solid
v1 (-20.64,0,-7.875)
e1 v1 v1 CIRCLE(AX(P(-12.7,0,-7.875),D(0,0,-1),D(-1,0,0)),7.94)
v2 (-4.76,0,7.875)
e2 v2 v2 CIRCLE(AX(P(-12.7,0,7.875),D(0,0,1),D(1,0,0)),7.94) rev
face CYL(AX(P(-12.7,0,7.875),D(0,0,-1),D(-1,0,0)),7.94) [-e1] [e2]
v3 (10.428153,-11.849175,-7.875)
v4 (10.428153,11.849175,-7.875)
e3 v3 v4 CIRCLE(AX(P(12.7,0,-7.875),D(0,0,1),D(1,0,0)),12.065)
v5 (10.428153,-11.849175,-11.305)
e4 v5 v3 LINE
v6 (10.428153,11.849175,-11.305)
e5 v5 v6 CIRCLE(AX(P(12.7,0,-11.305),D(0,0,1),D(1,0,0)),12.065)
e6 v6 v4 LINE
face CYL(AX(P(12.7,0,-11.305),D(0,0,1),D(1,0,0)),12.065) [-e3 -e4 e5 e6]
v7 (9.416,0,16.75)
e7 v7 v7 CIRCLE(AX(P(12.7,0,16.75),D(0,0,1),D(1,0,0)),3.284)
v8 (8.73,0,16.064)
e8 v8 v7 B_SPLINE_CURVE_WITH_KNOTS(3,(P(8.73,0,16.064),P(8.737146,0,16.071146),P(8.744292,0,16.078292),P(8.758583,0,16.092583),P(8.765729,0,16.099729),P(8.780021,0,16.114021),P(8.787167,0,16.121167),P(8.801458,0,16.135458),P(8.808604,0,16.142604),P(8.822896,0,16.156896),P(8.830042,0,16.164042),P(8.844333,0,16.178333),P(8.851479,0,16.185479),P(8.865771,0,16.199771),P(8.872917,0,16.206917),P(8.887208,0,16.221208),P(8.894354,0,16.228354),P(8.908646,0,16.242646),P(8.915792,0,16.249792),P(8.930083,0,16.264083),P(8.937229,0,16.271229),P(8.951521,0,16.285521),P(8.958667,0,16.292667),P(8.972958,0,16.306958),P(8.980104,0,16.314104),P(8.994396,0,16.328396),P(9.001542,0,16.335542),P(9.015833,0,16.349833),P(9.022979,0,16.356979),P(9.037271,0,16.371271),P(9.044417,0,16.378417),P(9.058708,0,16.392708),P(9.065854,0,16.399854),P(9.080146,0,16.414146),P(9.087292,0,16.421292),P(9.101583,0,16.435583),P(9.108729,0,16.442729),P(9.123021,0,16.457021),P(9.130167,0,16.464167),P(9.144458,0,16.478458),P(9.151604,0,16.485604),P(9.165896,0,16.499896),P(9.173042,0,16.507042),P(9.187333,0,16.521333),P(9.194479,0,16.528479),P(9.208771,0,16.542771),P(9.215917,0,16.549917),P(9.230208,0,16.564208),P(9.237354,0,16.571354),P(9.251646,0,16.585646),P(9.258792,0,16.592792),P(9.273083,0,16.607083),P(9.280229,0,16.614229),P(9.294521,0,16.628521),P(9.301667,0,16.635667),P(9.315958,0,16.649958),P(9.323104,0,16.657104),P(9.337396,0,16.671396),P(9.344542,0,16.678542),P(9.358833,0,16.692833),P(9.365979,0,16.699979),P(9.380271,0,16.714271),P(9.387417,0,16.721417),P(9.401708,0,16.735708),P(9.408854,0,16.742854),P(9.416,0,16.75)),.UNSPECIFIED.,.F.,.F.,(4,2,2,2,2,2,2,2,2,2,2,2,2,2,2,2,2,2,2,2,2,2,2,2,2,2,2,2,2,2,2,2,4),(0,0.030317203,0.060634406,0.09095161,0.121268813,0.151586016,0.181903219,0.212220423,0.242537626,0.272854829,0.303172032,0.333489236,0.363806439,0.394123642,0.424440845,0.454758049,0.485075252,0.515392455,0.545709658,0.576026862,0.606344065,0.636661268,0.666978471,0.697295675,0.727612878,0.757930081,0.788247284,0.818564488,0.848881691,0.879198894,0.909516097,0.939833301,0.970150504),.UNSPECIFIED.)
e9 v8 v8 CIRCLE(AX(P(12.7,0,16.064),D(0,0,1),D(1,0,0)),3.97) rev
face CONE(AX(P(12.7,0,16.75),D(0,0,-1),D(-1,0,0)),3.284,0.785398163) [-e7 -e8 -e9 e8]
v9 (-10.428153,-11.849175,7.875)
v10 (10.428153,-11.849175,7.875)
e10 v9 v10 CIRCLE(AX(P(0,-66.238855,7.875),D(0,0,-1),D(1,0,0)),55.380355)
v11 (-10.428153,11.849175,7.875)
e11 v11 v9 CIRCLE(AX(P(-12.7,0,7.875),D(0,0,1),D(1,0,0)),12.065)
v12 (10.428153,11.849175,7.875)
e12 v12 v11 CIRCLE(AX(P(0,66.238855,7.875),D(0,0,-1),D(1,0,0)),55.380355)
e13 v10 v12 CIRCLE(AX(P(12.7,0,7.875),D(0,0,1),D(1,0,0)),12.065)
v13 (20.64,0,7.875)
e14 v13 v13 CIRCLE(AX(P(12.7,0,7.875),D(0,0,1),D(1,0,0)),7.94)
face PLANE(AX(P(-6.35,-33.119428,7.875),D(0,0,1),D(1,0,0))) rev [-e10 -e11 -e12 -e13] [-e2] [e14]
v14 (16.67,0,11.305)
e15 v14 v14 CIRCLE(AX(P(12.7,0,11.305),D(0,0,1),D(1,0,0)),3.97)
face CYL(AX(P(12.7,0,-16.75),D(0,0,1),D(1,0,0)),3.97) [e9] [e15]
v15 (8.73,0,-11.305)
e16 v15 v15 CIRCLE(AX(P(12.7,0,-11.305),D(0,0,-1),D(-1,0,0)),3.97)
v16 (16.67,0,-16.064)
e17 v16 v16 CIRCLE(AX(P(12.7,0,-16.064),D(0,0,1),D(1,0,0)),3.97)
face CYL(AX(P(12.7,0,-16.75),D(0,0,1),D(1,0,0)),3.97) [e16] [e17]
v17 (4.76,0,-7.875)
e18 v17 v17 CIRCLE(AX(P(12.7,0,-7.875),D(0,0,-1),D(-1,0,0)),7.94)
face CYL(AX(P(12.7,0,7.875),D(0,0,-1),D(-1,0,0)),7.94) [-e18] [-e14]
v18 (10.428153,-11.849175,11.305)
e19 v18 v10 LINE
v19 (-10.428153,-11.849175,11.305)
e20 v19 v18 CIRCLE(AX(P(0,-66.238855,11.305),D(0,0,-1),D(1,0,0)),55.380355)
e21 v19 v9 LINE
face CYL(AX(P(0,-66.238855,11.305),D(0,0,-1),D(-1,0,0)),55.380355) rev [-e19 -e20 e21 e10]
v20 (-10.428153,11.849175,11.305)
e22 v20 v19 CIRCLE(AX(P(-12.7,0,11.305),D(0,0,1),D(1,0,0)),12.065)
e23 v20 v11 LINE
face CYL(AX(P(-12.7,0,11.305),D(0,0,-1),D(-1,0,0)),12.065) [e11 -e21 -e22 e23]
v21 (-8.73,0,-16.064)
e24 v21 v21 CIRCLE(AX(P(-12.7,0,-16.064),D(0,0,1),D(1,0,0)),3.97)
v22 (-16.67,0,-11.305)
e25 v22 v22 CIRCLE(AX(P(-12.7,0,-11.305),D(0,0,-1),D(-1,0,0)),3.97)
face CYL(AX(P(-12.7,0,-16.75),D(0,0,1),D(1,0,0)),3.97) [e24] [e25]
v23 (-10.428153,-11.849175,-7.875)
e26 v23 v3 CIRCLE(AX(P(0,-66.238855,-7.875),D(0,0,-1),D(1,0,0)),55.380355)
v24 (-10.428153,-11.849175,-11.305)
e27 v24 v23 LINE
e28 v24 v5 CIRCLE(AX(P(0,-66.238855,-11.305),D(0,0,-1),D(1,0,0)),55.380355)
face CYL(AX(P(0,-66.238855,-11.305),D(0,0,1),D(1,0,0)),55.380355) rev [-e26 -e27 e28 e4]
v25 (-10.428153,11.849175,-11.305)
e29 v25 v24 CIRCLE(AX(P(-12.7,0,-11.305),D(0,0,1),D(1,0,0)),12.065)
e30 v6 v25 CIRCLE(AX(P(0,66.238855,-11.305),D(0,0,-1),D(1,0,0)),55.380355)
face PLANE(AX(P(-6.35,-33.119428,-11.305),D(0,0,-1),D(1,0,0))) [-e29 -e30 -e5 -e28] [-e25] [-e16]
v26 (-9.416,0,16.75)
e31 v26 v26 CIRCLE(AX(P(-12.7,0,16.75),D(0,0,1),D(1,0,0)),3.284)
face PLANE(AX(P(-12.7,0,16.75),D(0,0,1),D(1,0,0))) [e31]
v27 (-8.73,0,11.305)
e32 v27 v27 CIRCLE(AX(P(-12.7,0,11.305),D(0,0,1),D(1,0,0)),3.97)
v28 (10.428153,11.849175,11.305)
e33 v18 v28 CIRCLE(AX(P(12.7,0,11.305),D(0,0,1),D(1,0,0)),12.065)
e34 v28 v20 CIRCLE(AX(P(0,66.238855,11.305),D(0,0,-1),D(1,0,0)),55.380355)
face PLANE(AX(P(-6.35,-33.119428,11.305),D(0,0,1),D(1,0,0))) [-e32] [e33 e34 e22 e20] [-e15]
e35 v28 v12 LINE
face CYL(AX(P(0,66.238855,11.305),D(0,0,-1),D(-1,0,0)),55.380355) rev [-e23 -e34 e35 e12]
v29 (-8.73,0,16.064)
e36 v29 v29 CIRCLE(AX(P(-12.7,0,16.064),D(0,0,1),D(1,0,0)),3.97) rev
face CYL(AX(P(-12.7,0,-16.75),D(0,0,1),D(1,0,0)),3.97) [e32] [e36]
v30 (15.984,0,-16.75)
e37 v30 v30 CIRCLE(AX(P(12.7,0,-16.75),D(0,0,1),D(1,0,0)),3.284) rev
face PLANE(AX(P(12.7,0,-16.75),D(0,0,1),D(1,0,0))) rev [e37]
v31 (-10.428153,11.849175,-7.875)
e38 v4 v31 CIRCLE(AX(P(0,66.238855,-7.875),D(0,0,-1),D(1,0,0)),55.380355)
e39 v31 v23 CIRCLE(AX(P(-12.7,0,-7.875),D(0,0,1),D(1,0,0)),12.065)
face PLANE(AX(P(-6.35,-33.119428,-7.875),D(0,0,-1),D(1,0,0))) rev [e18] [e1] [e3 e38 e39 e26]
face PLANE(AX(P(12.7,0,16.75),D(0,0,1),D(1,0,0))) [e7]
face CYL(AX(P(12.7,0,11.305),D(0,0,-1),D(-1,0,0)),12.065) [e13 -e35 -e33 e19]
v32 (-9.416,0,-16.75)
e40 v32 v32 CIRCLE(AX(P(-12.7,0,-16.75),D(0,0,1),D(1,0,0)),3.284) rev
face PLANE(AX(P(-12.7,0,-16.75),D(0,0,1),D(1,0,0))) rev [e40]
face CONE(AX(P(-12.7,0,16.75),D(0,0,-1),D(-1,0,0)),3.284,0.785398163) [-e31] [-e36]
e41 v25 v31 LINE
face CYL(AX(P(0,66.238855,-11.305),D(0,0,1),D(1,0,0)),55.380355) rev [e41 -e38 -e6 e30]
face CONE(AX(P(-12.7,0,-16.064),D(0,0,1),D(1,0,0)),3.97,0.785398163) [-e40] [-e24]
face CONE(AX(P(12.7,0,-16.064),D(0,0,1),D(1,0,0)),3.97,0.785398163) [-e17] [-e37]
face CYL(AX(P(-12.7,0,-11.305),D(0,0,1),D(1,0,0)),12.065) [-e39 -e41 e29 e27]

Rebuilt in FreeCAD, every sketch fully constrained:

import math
import FreeCAD as App
import Part
import Sketcher

V = App.Vector
Q = App.Units.Quantity


def edges_at(feature, points):
    """Names of the edges that pass closest to the given points."""
    edges = feature.Shape.Edges
    near = lambda p: min(range(len(edges)), key=lambda i: edges[i].distToShape(Part.Vertex(*p))[0])
    return sorted({f"Edge{near(p) + 1}" for p in points})

doc = App.newDocument("Part")
body = doc.addObject("PartDesign::Body", "Body")

# Sketch on XY plane
sketch1 = doc.addObject("Sketcher::SketchObject", "Sketch")
body.addObject(sketch1)
sketch1.AttachmentSupport = (doc.XY_Plane, [""])
sketch1.MapMode = "FlatFace"
sketch1.addGeometry(Part.Circle(V(13, 0, 0), V(0, 0, 1), 8), False)
sketch1.addConstraint([
    Sketcher.Constraint("PointOnObject", 0, 3, -1),
    Sketcher.Constraint("DistanceX", -1, 1, 0, 3, Q("0.5 in")),
    Sketcher.Constraint("Diameter", 0, Q("15.88 mm")),
])
pad1 = doc.addObject("PartDesign::Pad", "Pad")
body.addObject(pad1)
pad1.Profile = sketch1
pad1.Length = 15.75
pad1.Midplane = True
body2 = doc.addObject("PartDesign::Body", "Body001")

# Sketch on XY plane
sketch2 = doc.addObject("Sketcher::SketchObject", "Sketch001")
body2.addObject(sketch2)
sketch2.AttachmentSupport = (doc.getObject("XY_Plane001"), [""])
sketch2.MapMode = "FlatFace"
sketch2.addGeometry(Part.Circle(V(-13, 0, 0), V(0, 0, 1), 8), False)
sketch2.addConstraint([
    Sketcher.Constraint("PointOnObject", 0, 3, -1),
    Sketcher.Constraint("DistanceX", 0, 3, -1, 1, Q("0.5 in")),
    Sketcher.Constraint("Diameter", 0, Q("15.88 mm")),
])
pad2 = doc.addObject("PartDesign::Pad", "Pad001")
body2.addObject(pad2)
pad2.Profile = sketch2
pad2.Length = 15.75
pad2.Midplane = True
body.AllowCompound = True
doc.recompute()

boolean = doc.addObject("PartDesign::Boolean", "Boolean")
body.addObject(boolean)
boolean.Type = "Fuse"
boolean.addObjects([body2])

# Sketch on XY plane
sketch3 = doc.addObject("Sketcher::SketchObject", "Sketch002")
body.addObject(sketch3)
sketch3.AttachmentSupport = (doc.XY_Plane, [""])
sketch3.MapMode = "FlatFace"
sketch3.AttachmentOffset = App.Placement(V(0, 0, 7.875), App.Rotation())
sketch3.addGeometry([
    Part.ArcOfCircle(Part.Circle(V(-13, 0, 0), V(0, 0, 1), 12), math.radians(79), math.radians(281)),
    Part.ArcOfCircle(Part.Circle(V(0, -66, 0), V(0, 0, 1), 55), math.radians(79), math.radians(101)),
    Part.ArcOfCircle(Part.Circle(V(13, 0, 0), V(0, 0, 1), 12), math.radians(-101), math.radians(101)),
    Part.ArcOfCircle(Part.Circle(V(0, 66, 0), V(0, 0, 1), 55), math.radians(-101), math.radians(-79)),
], False)
sketch3.addConstraint([
    Sketcher.Constraint("Tangent", 0, 2, 1, 2),
    Sketcher.Constraint("Tangent", 1, 1, 2, 1),
    Sketcher.Constraint("Tangent", 2, 2, 3, 2),
    Sketcher.Constraint("Tangent", 3, 1, 0, 1),
    Sketcher.Constraint("Equal", 0, 2),
    Sketcher.Constraint("Equal", 1, 3),
    Sketcher.Constraint("Symmetric", 0, 3, 2, 3, -1, 1),
    Sketcher.Constraint("PointOnObject", 0, 3, -1),
    Sketcher.Constraint("Radius", 0, Q("0.475 in")),
    Sketcher.Constraint("DistanceX", 0, 3, 2, 3, Q("1 in")),
    Sketcher.Constraint("Radius", 1, Q("55.380355 mm")),
])
pad3 = doc.addObject("PartDesign::Pad", "Pad002")
body.addObject(pad3)
pad3.Profile = sketch3
pad3.Length = 3.43
doc.recompute()

mirrored = doc.addObject("PartDesign::Mirrored", "Mirrored")
body.addObject(mirrored)
mirrored.Originals = [pad3]
mirrored.MirrorPlane = (doc.XY_Plane, [""])
body.Tip = mirrored

# Sketch on XY plane
sketch4 = doc.addObject("Sketcher::SketchObject", "Sketch003")
body.addObject(sketch4)
sketch4.AttachmentSupport = (doc.XY_Plane, [""])
sketch4.MapMode = "FlatFace"
sketch4.addGeometry([
    Part.Circle(V(12.7, 0, 0), V(0, 0, 1), 4),
    Part.Circle(V(-12.7, 0, 0), V(0, 0, 1), 4),
], False)
sketch4.addConstraint([
    Sketcher.Constraint("Equal", 0, 1),
    Sketcher.Constraint("Symmetric", 0, 3, 1, 3, -1, 1),
    Sketcher.Constraint("PointOnObject", 0, 3, -1),
    Sketcher.Constraint("DistanceX", 1, 3, 0, 3, Q("1 in")),
    Sketcher.Constraint("Diameter", 0, Q("7.94 mm")),
])
pad4 = doc.addObject("PartDesign::Pad", "Pad003")
body.addObject(pad4)
pad4.Profile = sketch4
pad4.Length = 33.5
pad4.Midplane = True
doc.recompute()

chamfer = doc.addObject("PartDesign::Chamfer", "Chamfer")
body.addObject(chamfer)
chamfer.Base = (pad4, edges_at(pad4, [
    (8.73, 0, -16.75),
    (8.73, 0, 16.75),
    (-16.67, 0, -16.75),
    (-16.67, 0, 16.75),
]))
chamfer.Size = 0.686

doc.recompute()
